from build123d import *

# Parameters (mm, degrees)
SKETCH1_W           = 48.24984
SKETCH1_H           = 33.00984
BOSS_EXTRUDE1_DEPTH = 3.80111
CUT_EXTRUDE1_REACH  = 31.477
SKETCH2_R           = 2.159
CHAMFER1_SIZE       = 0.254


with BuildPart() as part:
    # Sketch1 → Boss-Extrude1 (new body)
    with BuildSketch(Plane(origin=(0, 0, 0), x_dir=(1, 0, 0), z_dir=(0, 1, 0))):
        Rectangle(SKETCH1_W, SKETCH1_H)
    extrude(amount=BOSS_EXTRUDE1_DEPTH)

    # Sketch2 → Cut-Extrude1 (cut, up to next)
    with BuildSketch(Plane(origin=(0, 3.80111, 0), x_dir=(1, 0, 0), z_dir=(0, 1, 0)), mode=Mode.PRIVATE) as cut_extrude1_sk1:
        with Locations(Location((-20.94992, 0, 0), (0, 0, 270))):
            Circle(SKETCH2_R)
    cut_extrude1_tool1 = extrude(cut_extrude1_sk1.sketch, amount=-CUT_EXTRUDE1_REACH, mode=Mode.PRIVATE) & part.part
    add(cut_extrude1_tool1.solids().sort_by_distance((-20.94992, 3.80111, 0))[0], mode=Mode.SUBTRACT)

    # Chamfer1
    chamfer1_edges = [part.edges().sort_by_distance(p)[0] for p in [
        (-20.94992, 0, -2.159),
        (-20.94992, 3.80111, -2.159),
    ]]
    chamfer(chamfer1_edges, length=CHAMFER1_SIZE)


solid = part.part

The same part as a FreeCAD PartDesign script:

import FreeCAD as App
import Part
import Sketcher

V = App.Vector
Q = App.Units.Quantity


def edges_at(feature, points):
    """Names of the edges that pass closest to the given points."""
    edges = feature.Shape.Edges
    near = lambda p: min(range(len(edges)), key=lambda i: edges[i].distToShape(Part.Vertex(*p))[0])
    return sorted({f"Edge{near(p) + 1}" for p in points})

doc = App.newDocument("Part")
params = doc.addObject("Spreadsheet::Sheet", "Params")
for row, (alias, value) in enumerate([
    ("pad1_length", "3.80111 mm"),
    ("sketch2_diameter", "0.17 in"),
    ("chamfer_size", "0.01 in"),
], start=1):
    params.set(f"A{row}", alias)
    params.set(f"B{row}", "=" + value)
    params.setAlias(f"B{row}", alias)

body = doc.addObject("PartDesign::Body", "Body")

# Sketch on XZ plane
sketch1 = body.newObject("Sketcher::SketchObject", "Sketch")
sketch1.AttachmentSupport = (doc.getObject("XZ_Plane"), [""])
sketch1.MapMode = "FlatFace"
sketch1.addGeometry(Part.LineSegment(V(-24, -17, 0), V(-24, 17, 0)), False)
sketch1.addGeometry(Part.LineSegment(V(-24, 17, 0), V(24, 17, 0)), False)
sketch1.addGeometry(Part.LineSegment(V(24, 17, 0), V(24, -17, 0)), False)
sketch1.addGeometry(Part.LineSegment(V(24, -17, 0), V(-24, -17, 0)), False)
sketch1.addConstraint(Sketcher.Constraint("Coincident", 0, 2, 1, 1))
sketch1.addConstraint(Sketcher.Constraint("Coincident", 1, 2, 2, 1))
sketch1.addConstraint(Sketcher.Constraint("Coincident", 2, 2, 3, 1))
sketch1.addConstraint(Sketcher.Constraint("Coincident", 3, 2, 0, 1))
sketch1.addConstraint(Sketcher.Constraint("Vertical", 0))
sketch1.addConstraint(Sketcher.Constraint("Horizontal", 1))
sketch1.addConstraint(Sketcher.Constraint("Vertical", 2))
sketch1.addConstraint(Sketcher.Constraint("Horizontal", 3))
sketch1.addConstraint(Sketcher.Constraint("Symmetric", 0, 2, 2, 2, -1, 1))
sketch1.addConstraint(Sketcher.Constraint("DistanceX", 1, 1, 1, 2, Q("1.8996 in")))
sketch1.addConstraint(Sketcher.Constraint("DistanceY", 0, 1, 0, 2, Q("1.2996 in")))
pad1 = body.newObject("PartDesign::Pad", "Pad")
pad1.Profile = sketch1
pad1.setExpression("Length", "Params.pad1_length")
pad1.Reversed = True

# Sketch on XZ plane
sketch2 = body.newObject("Sketcher::SketchObject", "Sketch001")
sketch2.AttachmentSupport = (doc.getObject("XZ_Plane"), [""])
sketch2.MapMode = "FlatFace"
sketch2.AttachmentOffset = App.Placement(V(0, 0, -3.80111), App.Rotation())
sketch2.addGeometry(Part.Circle(V(-20.9, 0, 0), V(0, 0, 1), 2.2), False)
sketch2.addConstraint(Sketcher.Constraint("PointOnObject", 0, 3, -1))
sketch2.addConstraint(Sketcher.Constraint("Diameter", 0, Q("0.17 in")))
sketch2.addConstraint(Sketcher.Constraint("DistanceX", 0, 3, -1, 1, Q("0.8248 in")))
sketch2.setExpression("Constraints[1]", "Params.sketch2_diameter")
pocket1 = body.newObject("PartDesign::Pocket", "Pocket")
pocket1.Profile = sketch2
pocket1.Type = "UpToFirst"
pocket1.Reversed = True
doc.recompute()

chamfer = body.newObject("PartDesign::Chamfer", "Chamfer")
chamfer.Base = (pocket1, edges_at(pocket1, [(-20.95, 0, -2.159), (-20.95, 3.801, -2.159)]))
chamfer.setExpression("Size", "Params.chamfer_size")

doc.recompute()
